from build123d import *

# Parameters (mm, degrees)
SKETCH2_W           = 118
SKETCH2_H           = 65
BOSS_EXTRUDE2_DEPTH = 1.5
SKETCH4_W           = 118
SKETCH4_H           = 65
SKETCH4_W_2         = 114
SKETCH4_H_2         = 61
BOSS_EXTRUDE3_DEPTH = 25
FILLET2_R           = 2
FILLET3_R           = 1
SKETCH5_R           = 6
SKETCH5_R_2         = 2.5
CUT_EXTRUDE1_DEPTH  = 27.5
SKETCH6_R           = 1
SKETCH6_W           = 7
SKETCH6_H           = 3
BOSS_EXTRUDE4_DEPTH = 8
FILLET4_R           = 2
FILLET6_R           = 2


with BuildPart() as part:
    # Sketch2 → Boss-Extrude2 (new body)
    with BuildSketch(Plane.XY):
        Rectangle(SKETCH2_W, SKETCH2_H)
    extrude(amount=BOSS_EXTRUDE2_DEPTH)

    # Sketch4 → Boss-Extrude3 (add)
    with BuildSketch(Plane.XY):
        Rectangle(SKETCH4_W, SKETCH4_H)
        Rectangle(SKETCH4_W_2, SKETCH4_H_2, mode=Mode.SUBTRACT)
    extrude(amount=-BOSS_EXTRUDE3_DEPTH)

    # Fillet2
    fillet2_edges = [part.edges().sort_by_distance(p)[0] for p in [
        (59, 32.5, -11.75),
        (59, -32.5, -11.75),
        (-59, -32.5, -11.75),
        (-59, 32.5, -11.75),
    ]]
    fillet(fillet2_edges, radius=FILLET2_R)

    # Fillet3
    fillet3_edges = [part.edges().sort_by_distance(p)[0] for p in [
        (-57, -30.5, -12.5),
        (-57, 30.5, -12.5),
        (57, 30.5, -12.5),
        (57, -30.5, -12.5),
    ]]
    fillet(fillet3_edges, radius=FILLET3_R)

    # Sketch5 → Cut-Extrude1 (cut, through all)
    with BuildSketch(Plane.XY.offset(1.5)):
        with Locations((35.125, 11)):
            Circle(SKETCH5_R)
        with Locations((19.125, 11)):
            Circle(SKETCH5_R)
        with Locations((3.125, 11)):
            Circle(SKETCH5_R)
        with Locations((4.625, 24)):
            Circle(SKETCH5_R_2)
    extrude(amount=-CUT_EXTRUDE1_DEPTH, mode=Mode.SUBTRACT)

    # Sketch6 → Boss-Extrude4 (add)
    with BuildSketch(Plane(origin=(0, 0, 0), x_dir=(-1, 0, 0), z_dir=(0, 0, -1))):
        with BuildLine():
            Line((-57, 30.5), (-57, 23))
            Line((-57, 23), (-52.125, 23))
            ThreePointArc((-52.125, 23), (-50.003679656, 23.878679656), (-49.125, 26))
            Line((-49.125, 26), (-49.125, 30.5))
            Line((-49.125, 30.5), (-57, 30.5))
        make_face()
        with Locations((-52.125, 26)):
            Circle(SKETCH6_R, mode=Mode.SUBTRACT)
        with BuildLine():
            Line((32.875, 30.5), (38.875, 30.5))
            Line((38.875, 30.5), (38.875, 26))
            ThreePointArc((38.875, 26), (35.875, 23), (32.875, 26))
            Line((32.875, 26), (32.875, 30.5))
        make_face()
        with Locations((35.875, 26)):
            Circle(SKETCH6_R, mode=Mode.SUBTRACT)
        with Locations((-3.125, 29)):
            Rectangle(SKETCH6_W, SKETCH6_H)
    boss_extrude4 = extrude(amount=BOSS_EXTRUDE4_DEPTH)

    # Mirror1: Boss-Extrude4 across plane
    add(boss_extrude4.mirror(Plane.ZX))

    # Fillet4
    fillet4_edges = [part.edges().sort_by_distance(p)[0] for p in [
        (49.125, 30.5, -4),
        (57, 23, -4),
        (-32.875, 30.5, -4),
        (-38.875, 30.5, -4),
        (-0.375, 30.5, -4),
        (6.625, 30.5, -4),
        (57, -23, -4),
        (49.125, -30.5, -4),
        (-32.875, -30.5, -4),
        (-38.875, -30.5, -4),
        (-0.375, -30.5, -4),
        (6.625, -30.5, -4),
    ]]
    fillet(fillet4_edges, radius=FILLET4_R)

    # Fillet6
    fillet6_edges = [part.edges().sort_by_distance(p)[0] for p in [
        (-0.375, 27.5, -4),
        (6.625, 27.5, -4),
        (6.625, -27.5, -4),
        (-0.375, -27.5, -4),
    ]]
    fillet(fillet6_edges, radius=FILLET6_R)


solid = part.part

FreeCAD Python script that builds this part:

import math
import FreeCAD as App
import Part
import Sketcher


def edges_at(feature, points):
    """Names of the edges that pass closest to the given points."""
    edges = feature.Shape.Edges
    near = lambda p: min(range(len(edges)), key=lambda i: edges[i].distToShape(Part.Vertex(*p))[0])
    return sorted({f"Edge{near(p) + 1}" for p in points})


def add_polygon(sketch, points):
    """Adds a closed chain of lines whose ends are joined by coincident constraints."""
    first, n = sketch.GeometryCount, len(points)
    for a, b in zip(points, points[1:] + points[:1]):
        sketch.addGeometry(Part.LineSegment(App.Vector(*a, 0), App.Vector(*b, 0)), False)
    for i in range(n):
        sketch.addConstraint(Sketcher.Constraint("Coincident", first + i, 2, first + (i + 1) % n, 1))

doc = App.newDocument("Part")
body = doc.addObject("PartDesign::Body", "Body")

sketch1 = doc.addObject("Sketcher::SketchObject", "Sketch")
body.addObject(sketch1)
sketch1.AttachmentSupport = (doc.XY_Plane, [""])
sketch1.MapMode = "FlatFace"
add_polygon(sketch1, [(-59, 32), (-59, -32), (59, -32), (59, 32)])
sketch1.addConstraint(Sketcher.Constraint("Vertical", 0))
sketch1.addConstraint(Sketcher.Constraint("Horizontal", 1))
sketch1.addConstraint(Sketcher.Constraint("Vertical", 2))
sketch1.addConstraint(Sketcher.Constraint("Horizontal", 3))
sketch1.addConstraint(Sketcher.Constraint("Symmetric", 0, 2, 2, 2, -1, 1))
sketch1.addConstraint(Sketcher.Constraint("DistanceX", 1, 1, 1, 2, 118.0))
sketch1.addConstraint(Sketcher.Constraint("DistanceY", 0, 2, 0, 1, 65.0))
pad1 = doc.addObject("PartDesign::Pad", "Pad")
body.addObject(pad1)
pad1.Profile = sketch1
pad1.Length = 1.5

sketch2 = doc.addObject("Sketcher::SketchObject", "Sketch001")
body.addObject(sketch2)
sketch2.AttachmentSupport = (doc.XY_Plane, [""])
sketch2.MapMode = "FlatFace"
add_polygon(sketch2, [(-59, 32), (-59, -32), (59, -32), (59, 32)])
add_polygon(sketch2, [(57, -30), (-57, -30), (-57, 30), (57, 30)])
sketch2.addConstraint(Sketcher.Constraint("Vertical", 0))
sketch2.addConstraint(Sketcher.Constraint("Horizontal", 1))
sketch2.addConstraint(Sketcher.Constraint("Vertical", 2))
sketch2.addConstraint(Sketcher.Constraint("Horizontal", 3))
sketch2.addConstraint(Sketcher.Constraint("Horizontal", 4))
sketch2.addConstraint(Sketcher.Constraint("Vertical", 5))
sketch2.addConstraint(Sketcher.Constraint("Horizontal", 6))
sketch2.addConstraint(Sketcher.Constraint("Vertical", 7))
sketch2.addConstraint(Sketcher.Constraint("Symmetric", 0, 2, 2, 2, -1, 1))
sketch2.addConstraint(Sketcher.Constraint("Symmetric", 4, 2, 6, 2, -1, 1))
sketch2.addConstraint(Sketcher.Constraint("DistanceX", 1, 1, 1, 2, 118.0))
sketch2.addConstraint(Sketcher.Constraint("DistanceX", 4, 2, 4, 1, 114.0))
sketch2.addConstraint(Sketcher.Constraint("DistanceY", 0, 2, 0, 1, 65.0))
sketch2.addConstraint(Sketcher.Constraint("DistanceY", 5, 1, 5, 2, 61.0))
pad2 = doc.addObject("PartDesign::Pad", "Pad001")
body.addObject(pad2)
pad2.Profile = sketch2
pad2.Length = 25
pad2.Reversed = True
doc.recompute()

fillet = doc.addObject("PartDesign::Fillet", "Fillet")
body.addObject(fillet)
fillet.Base = (pad2, edges_at(pad2, [
    (59, 32.5, -11.75),
    (59, -32.5, -11.75),
    (-59, -32.5, -11.75),
    (-59, 32.5, -11.75),
]))
fillet.Radius = 2
doc.recompute()

fillet2 = doc.addObject("PartDesign::Fillet", "Fillet001")
body.addObject(fillet2)
fillet2.Base = (fillet, edges_at(fillet, [
    (-57, -30.5, -12.5),
    (-57, 30.5, -12.5),
    (57, 30.5, -12.5),
    (57, -30.5, -12.5),
]))
fillet2.Radius = 1

sketch3 = doc.addObject("Sketcher::SketchObject", "Sketch002")
body.addObject(sketch3)
sketch3.AttachmentSupport = (doc.XY_Plane, [""])
sketch3.MapMode = "FlatFace"
sketch3.AttachmentOffset = App.Placement(App.Vector(0, 0, 1.5), App.Rotation())
sketch3.addGeometry(Part.Circle(App.Vector(35.1, 11, 0), App.Vector(0, 0, 1), 6), False)
sketch3.addGeometry(Part.Circle(App.Vector(19.1, 11, 0), App.Vector(0, 0, 1), 6), False)
sketch3.addGeometry(Part.Circle(App.Vector(3.1, 11, 0), App.Vector(0, 0, 1), 6), False)
sketch3.addGeometry(Part.Circle(App.Vector(4.6, 24, 0), App.Vector(0, 0, 1), 2.5), False)
sketch3.addConstraint(Sketcher.Constraint("Equal", 0, 1))
sketch3.addConstraint(Sketcher.Constraint("Equal", 1, 2))
sketch3.addConstraint(Sketcher.Constraint("Horizontal", 0, 3, 1, 3))
sketch3.addConstraint(Sketcher.Constraint("Horizontal", 1, 3, 2, 3))
sketch3.addConstraint(Sketcher.Constraint("Diameter", 0, 12.0))
sketch3.addConstraint(Sketcher.Constraint("Diameter", 3, 5.0))
sketch3.addConstraint(Sketcher.Constraint("DistanceY", -1, 1, 0, 3, 11.0))
sketch3.addConstraint(Sketcher.Constraint("DistanceY", -1, 1, 3, 3, 24.0))
sketch3.addConstraint(Sketcher.Constraint("DistanceX", 1, 3, 0, 3, 16.0))
sketch3.addConstraint(Sketcher.Constraint("DistanceX", 2, 3, 1, 3, 16.0))
sketch3.addConstraint(Sketcher.Constraint("DistanceX", 2, 3, 3, 3, 1.5))
sketch3.addConstraint(Sketcher.Constraint("DistanceX", -1, 1, 0, 3, 35.125))
pocket1 = doc.addObject("PartDesign::Pocket", "Pocket")
body.addObject(pocket1)
pocket1.Profile = sketch3
pocket1.Type = "ThroughAll"

sketch4 = doc.addObject("Sketcher::SketchObject", "Sketch003")
body.addObject(sketch4)
sketch4.AttachmentSupport = (doc.XY_Plane, [""])
sketch4.MapMode = "FlatFace"
sketch4.addGeometry(Part.LineSegment(App.Vector(57, 30.5, 0), App.Vector(57, 23, 0)), False)
sketch4.addGeometry(Part.LineSegment(App.Vector(57, 23, 0), App.Vector(52.1, 23, 0)), False)
sketch4.addGeometry(Part.ArcOfCircle(Part.Circle(App.Vector(52.1, 26, 0), App.Vector(0, 0, 1), 3), math.radians(180), math.radians(270)), False)
sketch4.addGeometry(Part.LineSegment(App.Vector(49.1, 26, 0), App.Vector(49.1, 30.5, 0)), False)
sketch4.addGeometry(Part.LineSegment(App.Vector(49.1, 30.5, 0), App.Vector(57, 30.5, 0)), False)
sketch4.addGeometry(Part.Circle(App.Vector(52.1, 26, 0), App.Vector(0, 0, 1), 1), False)
sketch4.addGeometry(Part.LineSegment(App.Vector(-38.9, 30.5, 0), App.Vector(-32.9, 30.5, 0)), False)
sketch4.addGeometry(Part.LineSegment(App.Vector(-32.9, 30.5, 0), App.Vector(-32.9, 26, 0)), False)
sketch4.addGeometry(Part.ArcOfCircle(Part.Circle(App.Vector(-35.9, 26, 0), App.Vector(0, 0, 1), 3), math.radians(180), math.radians(360)), False)
sketch4.addGeometry(Part.LineSegment(App.Vector(-38.9, 26, 0), App.Vector(-38.9, 30.5, 0)), False)
sketch4.addGeometry(Part.Circle(App.Vector(-35.9, 26, 0), App.Vector(0, 0, 1), 1), False)
add_polygon(sketch4, [(6.6, 30.5), (6.6, 27.5), (-0.4, 27.5), (-0.4, 30.5)])
sketch4.addConstraint(Sketcher.Constraint("Coincident", 0, 2, 1, 1))
sketch4.addConstraint(Sketcher.Constraint("Tangent", 1, 2, 2, 2))
sketch4.addConstraint(Sketcher.Constraint("Tangent", 2, 1, 3, 1))
sketch4.addConstraint(Sketcher.Constraint("Coincident", 3, 2, 4, 1))
sketch4.addConstraint(Sketcher.Constraint("Coincident", 4, 2, 0, 1))
sketch4.addConstraint(Sketcher.Constraint("Coincident", 6, 2, 7, 1))
sketch4.addConstraint(Sketcher.Constraint("Tangent", 7, 2, 8, 2))
sketch4.addConstraint(Sketcher.Constraint("Tangent", 8, 1, 9, 1))
sketch4.addConstraint(Sketcher.Constraint("Coincident", 9, 2, 6, 1))
sketch4.addConstraint(Sketcher.Constraint("Vertical", 0))
sketch4.addConstraint(Sketcher.Constraint("Horizontal", 1))
sketch4.addConstraint(Sketcher.Constraint("Vertical", 3))
sketch4.addConstraint(Sketcher.Constraint("Horizontal", 4))
sketch4.addConstraint(Sketcher.Constraint("Horizontal", 6))
sketch4.addConstraint(Sketcher.Constraint("Vertical", 7))
sketch4.addConstraint(Sketcher.Constraint("Vertical", 9))
sketch4.addConstraint(Sketcher.Constraint("Vertical", 11))
sketch4.addConstraint(Sketcher.Constraint("Horizontal", 12))
sketch4.addConstraint(Sketcher.Constraint("Vertical", 13))
sketch4.addConstraint(Sketcher.Constraint("Horizontal", 14))
sketch4.addConstraint(Sketcher.Constraint("Coincident", 5, 3, 2, 3))
sketch4.addConstraint(Sketcher.Constraint("Coincident", 10, 3, 8, 3))
sketch4.addConstraint(Sketcher.Constraint("Equal", 2, 8))
sketch4.addConstraint(Sketcher.Constraint("Equal", 5, 10))
sketch4.addConstraint(Sketcher.Constraint("Horizontal", 5, 3, 8, 3))
sketch4.addConstraint(Sketcher.Constraint("Horizontal", 4, 2, 6, 2))
sketch4.addConstraint(Sketcher.Constraint("Horizontal", 9, 2, 13, 2))
sketch4.addConstraint(Sketcher.Constraint("Diameter", 5, 2.0))
sketch4.addConstraint(Sketcher.Constraint("Radius", 2, 3.0))
sketch4.addConstraint(Sketcher.Constraint("DistanceX", 12, 2, 12, 1, 7.0))
sketch4.addConstraint(Sketcher.Constraint("DistanceY", 11, 2, 11, 1, 3.0))
sketch4.addConstraint(Sketcher.Constraint("DistanceY", 0, 2, 0, 1, 7.5))
sketch4.addConstraint(Sketcher.Constraint("DistanceY", -1, 1, 2, 3, 26.0))
sketch4.addConstraint(Sketcher.Constraint("DistanceX", -1, 1, 0, 2, 57.0))
sketch4.addConstraint(Sketcher.Constraint("DistanceX", 8, 3, 2, 3, 88.0))
sketch4.addConstraint(Sketcher.Constraint("DistanceX", 7, 2, 11, 2, 39.5))
sketch4.addConstraint(Sketcher.Constraint("DistanceX", 1, 2, 1, 1, 4.875))
pad3 = doc.addObject("PartDesign::Pad", "Pad002")
body.addObject(pad3)
pad3.Profile = sketch4
pad3.Length = 8
pad3.Reversed = True
doc.recompute()

mirrored = doc.addObject("PartDesign::Mirrored", "Mirrored")
body.addObject(mirrored)
mirrored.Originals = [pad3]
mirrored.MirrorPlane = (doc.XZ_Plane, [""])
body.Tip = mirrored
doc.recompute()

fillet3 = doc.addObject("PartDesign::Fillet", "Fillet002")
body.addObject(fillet3)
fillet3.Base = (mirrored, edges_at(mirrored, [
    (49.125, 30.5, -4),
    (57, 23, -4),
    (-32.875, 30.5, -4),
    (-38.875, 30.5, -4),
    (-0.375, 30.5, -4),
    (6.625, 30.5, -4),
    (57, -23, -4),
    (49.125, -30.5, -4),
    (-32.875, -30.5, -4),
    (-38.875, -30.5, -4),
    (-0.375, -30.5, -4),
    (6.625, -30.5, -4),
]))
fillet3.Radius = 2
doc.recompute()

fillet4 = doc.addObject("PartDesign::Fillet", "Fillet003")
body.addObject(fillet4)
fillet4.Base = (fillet3, edges_at(fillet3, [
    (-0.375, 27.5, -4),
    (6.625, 27.5, -4),
    (6.625, -27.5, -4),
    (-0.375, -27.5, -4),
]))
fillet4.Radius = 2

doc.recompute()
